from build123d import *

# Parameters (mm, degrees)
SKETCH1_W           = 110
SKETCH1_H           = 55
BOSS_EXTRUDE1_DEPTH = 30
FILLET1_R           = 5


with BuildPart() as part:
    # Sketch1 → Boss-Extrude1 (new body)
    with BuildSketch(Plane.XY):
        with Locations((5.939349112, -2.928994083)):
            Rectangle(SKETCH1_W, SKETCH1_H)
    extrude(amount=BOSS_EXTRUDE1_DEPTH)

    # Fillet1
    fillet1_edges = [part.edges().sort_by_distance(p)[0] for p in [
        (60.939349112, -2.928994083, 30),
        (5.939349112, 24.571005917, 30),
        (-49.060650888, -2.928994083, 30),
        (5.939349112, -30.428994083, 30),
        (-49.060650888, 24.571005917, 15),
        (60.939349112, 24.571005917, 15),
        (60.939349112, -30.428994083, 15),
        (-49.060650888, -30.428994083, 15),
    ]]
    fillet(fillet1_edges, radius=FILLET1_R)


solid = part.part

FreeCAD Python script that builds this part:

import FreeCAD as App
import Part
import Sketcher
Q = App.Units.Quantity


def edges_at(feature, points):
    """Names of the edges that pass closest to the given points."""
    edges = feature.Shape.Edges
    near = lambda p: min(range(len(edges)), key=lambda i: edges[i].distToShape(Part.Vertex(*p))[0])
    return sorted({f"Edge{near(p) + 1}" for p in points})

doc = App.newDocument("Part")
body = doc.addObject("PartDesign::Body", "Body")

# Sketch on XY plane
sketch1 = doc.addObject("Sketcher::SketchObject", "Sketch")
body.addObject(sketch1)
sketch1.AttachmentSupport = (doc.XY_Plane, [""])
sketch1.MapMode = "FlatFace"
sketch1.addGeometry(Part.LineSegment(App.Vector(-49.060651, 24.571006, 0), App.Vector(-49.060651, -30.428994, 0)), False)
sketch1.addGeometry(Part.LineSegment(App.Vector(-49.060651, -30.428994, 0), App.Vector(60.939349, -30.428994, 0)), False)
sketch1.addGeometry(Part.LineSegment(App.Vector(60.939349, -30.428994, 0), App.Vector(60.939349, 24.571006, 0)), False)
sketch1.addGeometry(Part.LineSegment(App.Vector(60.939349, 24.571006, 0), App.Vector(-49.060651, 24.571006, 0)), False)
sketch1.addConstraint(Sketcher.Constraint("Coincident", 0, 2, 1, 1))
sketch1.addConstraint(Sketcher.Constraint("Coincident", 1, 2, 2, 1))
sketch1.addConstraint(Sketcher.Constraint("Coincident", 2, 2, 3, 1))
sketch1.addConstraint(Sketcher.Constraint("Coincident", 3, 2, 0, 1))
sketch1.addConstraint(Sketcher.Constraint("Vertical", 0))
sketch1.addConstraint(Sketcher.Constraint("Horizontal", 1))
sketch1.addConstraint(Sketcher.Constraint("Vertical", 2))
sketch1.addConstraint(Sketcher.Constraint("Horizontal", 3))
sketch1.addConstraint(Sketcher.Constraint("DistanceX", 1, 1, 1, 2, Q("110 mm")))
sketch1.addConstraint(Sketcher.Constraint("DistanceY", 0, 2, 0, 1, Q("55 mm")))
sketch1.addConstraint(Sketcher.Constraint("DistanceX", 0, 2, -1, 1, Q("49.060651 mm")))
sketch1.addConstraint(Sketcher.Constraint("DistanceY", 0, 2, -1, 1, Q("30.428994 mm")))
pad1 = doc.addObject("PartDesign::Pad", "Pad")
body.addObject(pad1)
pad1.Profile = sketch1
pad1.Length = 30
doc.recompute()

fillet = doc.addObject("PartDesign::Fillet", "Fillet")
body.addObject(fillet)
fillet.Base = (pad1, edges_at(pad1, [
    (60.939, -2.929, 30),
    (5.939, 24.571, 30),
    (-49.061, -2.929, 30),
    (5.939, -30.429, 30),
    (-49.061, 24.571, 15),
    (60.939, 24.571, 15),
    (60.939, -30.429, 15),
    (-49.061, -30.429, 15),
]))
fillet.Radius = 5

doc.recompute()
